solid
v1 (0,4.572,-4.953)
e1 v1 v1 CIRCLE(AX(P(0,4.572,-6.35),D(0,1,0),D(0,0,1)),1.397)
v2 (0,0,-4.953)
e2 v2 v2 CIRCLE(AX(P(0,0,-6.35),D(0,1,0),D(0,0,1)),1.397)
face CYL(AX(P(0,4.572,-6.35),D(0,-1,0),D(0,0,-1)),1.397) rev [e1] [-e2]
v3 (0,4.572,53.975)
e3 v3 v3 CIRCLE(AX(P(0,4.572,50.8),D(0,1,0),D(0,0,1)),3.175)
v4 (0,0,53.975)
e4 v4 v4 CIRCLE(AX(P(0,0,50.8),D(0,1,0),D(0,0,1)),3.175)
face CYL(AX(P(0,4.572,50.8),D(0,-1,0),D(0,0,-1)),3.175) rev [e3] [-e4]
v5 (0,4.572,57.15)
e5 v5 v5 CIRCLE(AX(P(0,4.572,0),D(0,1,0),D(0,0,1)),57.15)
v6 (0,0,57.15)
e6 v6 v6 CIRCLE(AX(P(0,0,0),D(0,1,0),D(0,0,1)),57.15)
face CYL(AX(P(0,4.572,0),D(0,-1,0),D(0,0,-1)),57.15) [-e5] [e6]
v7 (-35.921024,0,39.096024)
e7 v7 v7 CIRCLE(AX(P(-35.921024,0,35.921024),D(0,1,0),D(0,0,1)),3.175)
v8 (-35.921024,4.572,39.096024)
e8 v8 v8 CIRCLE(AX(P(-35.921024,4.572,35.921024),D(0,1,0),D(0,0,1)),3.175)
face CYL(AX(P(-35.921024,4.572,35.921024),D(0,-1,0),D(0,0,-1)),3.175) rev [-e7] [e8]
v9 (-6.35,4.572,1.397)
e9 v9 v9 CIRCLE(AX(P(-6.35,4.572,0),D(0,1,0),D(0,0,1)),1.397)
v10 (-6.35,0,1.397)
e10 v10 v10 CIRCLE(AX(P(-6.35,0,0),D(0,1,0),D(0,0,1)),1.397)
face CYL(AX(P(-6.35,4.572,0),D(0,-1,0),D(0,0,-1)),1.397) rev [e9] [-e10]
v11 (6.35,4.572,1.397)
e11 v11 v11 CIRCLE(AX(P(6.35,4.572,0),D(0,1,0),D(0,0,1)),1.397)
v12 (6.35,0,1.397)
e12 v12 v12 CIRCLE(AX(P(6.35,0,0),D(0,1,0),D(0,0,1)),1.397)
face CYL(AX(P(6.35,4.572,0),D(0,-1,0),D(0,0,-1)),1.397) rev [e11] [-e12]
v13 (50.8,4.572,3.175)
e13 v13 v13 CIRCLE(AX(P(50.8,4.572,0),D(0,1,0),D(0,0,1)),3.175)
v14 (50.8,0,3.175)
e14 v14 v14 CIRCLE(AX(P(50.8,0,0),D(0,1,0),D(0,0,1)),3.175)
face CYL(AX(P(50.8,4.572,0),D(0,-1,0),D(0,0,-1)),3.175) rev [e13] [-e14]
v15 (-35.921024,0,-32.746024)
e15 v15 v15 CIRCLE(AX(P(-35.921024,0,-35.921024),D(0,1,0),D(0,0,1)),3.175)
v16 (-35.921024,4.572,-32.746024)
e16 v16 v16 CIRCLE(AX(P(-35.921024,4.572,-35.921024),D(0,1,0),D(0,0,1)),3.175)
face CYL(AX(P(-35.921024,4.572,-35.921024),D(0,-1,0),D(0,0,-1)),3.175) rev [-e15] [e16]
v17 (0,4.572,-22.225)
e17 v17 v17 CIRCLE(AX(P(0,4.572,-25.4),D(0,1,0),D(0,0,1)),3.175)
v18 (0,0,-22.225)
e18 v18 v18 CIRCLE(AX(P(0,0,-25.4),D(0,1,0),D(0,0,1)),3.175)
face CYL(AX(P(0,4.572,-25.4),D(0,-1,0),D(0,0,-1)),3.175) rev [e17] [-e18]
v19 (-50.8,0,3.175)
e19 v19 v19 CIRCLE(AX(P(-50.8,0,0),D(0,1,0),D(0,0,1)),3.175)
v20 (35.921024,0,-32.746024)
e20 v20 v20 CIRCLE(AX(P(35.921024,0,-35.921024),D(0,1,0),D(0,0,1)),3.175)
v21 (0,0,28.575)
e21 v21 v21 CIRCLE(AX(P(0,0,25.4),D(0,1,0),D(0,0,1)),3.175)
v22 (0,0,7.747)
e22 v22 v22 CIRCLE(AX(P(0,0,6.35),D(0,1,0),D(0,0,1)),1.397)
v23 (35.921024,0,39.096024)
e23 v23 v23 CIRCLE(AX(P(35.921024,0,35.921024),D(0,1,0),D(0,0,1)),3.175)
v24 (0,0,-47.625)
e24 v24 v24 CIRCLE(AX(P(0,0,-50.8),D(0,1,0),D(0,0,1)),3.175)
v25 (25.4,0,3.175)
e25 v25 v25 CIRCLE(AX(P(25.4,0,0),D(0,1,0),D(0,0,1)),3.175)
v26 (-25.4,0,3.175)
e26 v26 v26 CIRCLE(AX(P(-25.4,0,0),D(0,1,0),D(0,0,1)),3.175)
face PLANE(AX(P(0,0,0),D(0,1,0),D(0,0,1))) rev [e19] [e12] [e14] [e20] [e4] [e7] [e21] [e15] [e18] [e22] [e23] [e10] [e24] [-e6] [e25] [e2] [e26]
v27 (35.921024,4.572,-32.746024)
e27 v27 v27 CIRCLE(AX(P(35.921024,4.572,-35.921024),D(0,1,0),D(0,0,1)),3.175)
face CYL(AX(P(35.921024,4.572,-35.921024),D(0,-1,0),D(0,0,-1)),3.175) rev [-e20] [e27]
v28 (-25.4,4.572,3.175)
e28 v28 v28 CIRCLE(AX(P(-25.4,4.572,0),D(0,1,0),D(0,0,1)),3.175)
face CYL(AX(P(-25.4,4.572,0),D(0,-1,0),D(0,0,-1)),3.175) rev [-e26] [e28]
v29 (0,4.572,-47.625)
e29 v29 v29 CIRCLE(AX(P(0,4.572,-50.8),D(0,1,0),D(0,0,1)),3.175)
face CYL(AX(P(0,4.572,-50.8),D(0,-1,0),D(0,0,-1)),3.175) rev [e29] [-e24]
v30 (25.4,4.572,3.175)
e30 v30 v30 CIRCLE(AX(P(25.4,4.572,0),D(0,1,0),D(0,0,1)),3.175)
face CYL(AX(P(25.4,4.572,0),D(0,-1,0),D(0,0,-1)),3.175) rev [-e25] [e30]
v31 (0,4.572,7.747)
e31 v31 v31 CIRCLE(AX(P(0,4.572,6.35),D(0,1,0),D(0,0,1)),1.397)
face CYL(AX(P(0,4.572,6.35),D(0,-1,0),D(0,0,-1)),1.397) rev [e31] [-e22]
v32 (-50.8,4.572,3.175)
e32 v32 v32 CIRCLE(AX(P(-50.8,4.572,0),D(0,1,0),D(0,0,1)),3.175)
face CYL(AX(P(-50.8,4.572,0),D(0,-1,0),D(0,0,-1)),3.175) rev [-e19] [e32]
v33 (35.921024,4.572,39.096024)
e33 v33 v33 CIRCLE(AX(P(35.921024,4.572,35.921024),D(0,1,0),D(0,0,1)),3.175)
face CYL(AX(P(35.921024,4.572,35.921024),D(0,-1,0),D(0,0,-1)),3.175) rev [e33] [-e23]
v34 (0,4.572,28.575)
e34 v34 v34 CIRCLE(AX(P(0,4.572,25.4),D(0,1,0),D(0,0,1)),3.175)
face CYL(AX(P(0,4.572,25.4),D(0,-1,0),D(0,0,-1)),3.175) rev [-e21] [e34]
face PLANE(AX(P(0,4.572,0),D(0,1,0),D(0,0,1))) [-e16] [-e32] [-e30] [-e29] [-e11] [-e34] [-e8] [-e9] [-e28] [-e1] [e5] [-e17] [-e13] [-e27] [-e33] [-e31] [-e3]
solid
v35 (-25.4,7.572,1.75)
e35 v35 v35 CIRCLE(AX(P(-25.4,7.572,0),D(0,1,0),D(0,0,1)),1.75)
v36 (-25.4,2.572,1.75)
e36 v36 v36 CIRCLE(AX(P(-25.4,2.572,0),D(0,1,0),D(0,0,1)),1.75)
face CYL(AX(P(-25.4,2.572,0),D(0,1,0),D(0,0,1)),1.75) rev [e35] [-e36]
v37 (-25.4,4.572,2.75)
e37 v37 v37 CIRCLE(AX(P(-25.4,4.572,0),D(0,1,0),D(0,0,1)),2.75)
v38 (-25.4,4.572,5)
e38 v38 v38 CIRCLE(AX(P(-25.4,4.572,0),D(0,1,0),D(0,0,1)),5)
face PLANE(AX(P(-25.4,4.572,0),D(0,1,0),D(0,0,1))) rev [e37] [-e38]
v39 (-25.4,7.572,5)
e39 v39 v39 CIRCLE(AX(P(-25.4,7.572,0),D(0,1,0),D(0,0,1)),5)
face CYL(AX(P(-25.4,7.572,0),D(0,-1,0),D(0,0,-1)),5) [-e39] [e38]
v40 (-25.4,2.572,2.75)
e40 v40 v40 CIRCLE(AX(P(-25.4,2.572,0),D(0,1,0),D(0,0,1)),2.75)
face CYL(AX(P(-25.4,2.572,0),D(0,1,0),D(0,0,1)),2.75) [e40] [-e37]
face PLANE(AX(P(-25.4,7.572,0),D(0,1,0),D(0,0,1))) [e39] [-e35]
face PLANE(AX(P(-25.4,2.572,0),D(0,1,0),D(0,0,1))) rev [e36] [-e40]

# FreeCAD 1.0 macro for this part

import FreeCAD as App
import Part
import Sketcher

V = App.Vector

doc = App.newDocument("Part")
params = doc.addObject("Spreadsheet::Sheet", "Params")
for row, (alias, value) in enumerate([
    ("sketch1_diameter", "114.3 mm"),
    ("sketch1_diameter2", "6.35 mm"),
    ("pad1_length", "4.572 mm"),
    ("sketch2_diameter", "5.5 mm"),
    ("sketch2_diameter2", "3.5 mm"),
    ("pad2_length", "2 mm"),
    ("sketch3_diameter", "10 mm"),
    ("sketch3_diameter2", "3.5 mm"),
    ("pad3_length", "3 mm"),
], start=1):
    params.set(f"A{row}", alias)
    params.set(f"B{row}", "=" + value)
    params.setAlias(f"B{row}", alias)

body = doc.addObject("PartDesign::Body", "Body")

sketch1 = doc.addObject("Sketcher::SketchObject", "Sketch")
body.addObject(sketch1)
sketch1.AttachmentSupport = (doc.XZ_Plane, [""])
sketch1.MapMode = "FlatFace"
sketch1.addGeometry(Part.Circle(V(0, 0, 0), V(0, 0, 1), 57.1), False)
sketch1.addGeometry(Part.Circle(V(-35.9, 35.9, 0), V(0, 0, 1), 3.2), False)
sketch1.addGeometry(Part.Circle(V(0, 50.8, 0), V(0, 0, 1), 3.2), False)
sketch1.addGeometry(Part.Circle(V(35.9, 35.9, 0), V(0, 0, 1), 3.2), False)
sketch1.addGeometry(Part.Circle(V(0, 25.4, 0), V(0, 0, 1), 3.2), False)
sketch1.addGeometry(Part.Circle(V(0, 6.3, 0), V(0, 0, 1), 1.4), False)
sketch1.addGeometry(Part.Circle(V(-50.8, 0, 0), V(0, 0, 1), 3.2), False)
sketch1.addGeometry(Part.Circle(V(-25.4, 0, 0), V(0, 0, 1), 3.2), False)
sketch1.addGeometry(Part.Circle(V(-6.3, 0, 0), V(0, 0, 1), 1.4), False)
sketch1.addGeometry(Part.Circle(V(-35.9, -35.9, 0), V(0, 0, 1), 3.2), False)
sketch1.addGeometry(Part.Circle(V(6.3, 0, 0), V(0, 0, 1), 1.4), False)
sketch1.addGeometry(Part.Circle(V(0, -6.3, 0), V(0, 0, 1), 1.4), False)
sketch1.addGeometry(Part.Circle(V(25.4, 0, 0), V(0, 0, 1), 3.2), False)
sketch1.addGeometry(Part.Circle(V(0, -25.4, 0), V(0, 0, 1), 3.2), False)
sketch1.addGeometry(Part.Circle(V(50.8, 0, 0), V(0, 0, 1), 3.2), False)
sketch1.addGeometry(Part.Circle(V(0, -50.8, 0), V(0, 0, 1), 3.2), False)
sketch1.addGeometry(Part.Circle(V(35.9, -35.9, 0), V(0, 0, 1), 3.2), False)
sketch1.addConstraint(Sketcher.Constraint("Coincident", 0, 3, -1, 1))
sketch1.addConstraint(Sketcher.Constraint("Equal", 1, 2))
sketch1.addConstraint(Sketcher.Constraint("Equal", 2, 3))
sketch1.addConstraint(Sketcher.Constraint("Equal", 3, 4))
sketch1.addConstraint(Sketcher.Constraint("Equal", 4, 6))
sketch1.addConstraint(Sketcher.Constraint("Equal", 6, 7))
sketch1.addConstraint(Sketcher.Constraint("Equal", 5, 8))
sketch1.addConstraint(Sketcher.Constraint("Equal", 7, 9))
sketch1.addConstraint(Sketcher.Constraint("Equal", 8, 10))
sketch1.addConstraint(Sketcher.Constraint("Equal", 10, 11))
sketch1.addConstraint(Sketcher.Constraint("Equal", 9, 12))
sketch1.addConstraint(Sketcher.Constraint("Equal", 12, 13))
sketch1.addConstraint(Sketcher.Constraint("Equal", 13, 14))
sketch1.addConstraint(Sketcher.Constraint("Equal", 14, 15))
sketch1.addConstraint(Sketcher.Constraint("Equal", 15, 16))
sketch1.addConstraint(Sketcher.Constraint("Symmetric", 3, 3, 9, 3, -1, 1))
sketch1.addConstraint(Sketcher.Constraint("Symmetric", 8, 3, 10, 3, -1, 1))
sketch1.addConstraint(Sketcher.Constraint("Symmetric", 5, 3, 11, 3, -1, 1))
sketch1.addConstraint(Sketcher.Constraint("Symmetric", 7, 3, 12, 3, -1, 1))
sketch1.addConstraint(Sketcher.Constraint("Symmetric", 4, 3, 13, 3, -1, 1))
sketch1.addConstraint(Sketcher.Constraint("Symmetric", 6, 3, 14, 3, -1, 1))
sketch1.addConstraint(Sketcher.Constraint("Symmetric", 2, 3, 15, 3, -1, 1))
sketch1.addConstraint(Sketcher.Constraint("Symmetric", 1, 3, 16, 3, -1, 1))
sketch1.addConstraint(Sketcher.Constraint("Symmetric", 1, 3, 3, 3, -2))
sketch1.addConstraint(Sketcher.Constraint("PointOnObject", 2, 3, -2))
sketch1.addConstraint(Sketcher.Constraint("PointOnObject", 4, 3, -2))
sketch1.addConstraint(Sketcher.Constraint("PointOnObject", 5, 3, -2))
sketch1.addConstraint(Sketcher.Constraint("PointOnObject", 6, 3, -1))
sketch1.addConstraint(Sketcher.Constraint("PointOnObject", 7, 3, -1))
sketch1.addConstraint(Sketcher.Constraint("PointOnObject", 8, 3, -1))
sketch1.addConstraint(Sketcher.Constraint("Diameter", 0, 114.3))
sketch1.addConstraint(Sketcher.Constraint("Diameter", 1, 6.35))
sketch1.addConstraint(Sketcher.Constraint("Diameter", 5, 2.794))
sketch1.addConstraint(Sketcher.Constraint("DistanceY", -1, 1, 2, 3, 50.8))
sketch1.addConstraint(Sketcher.Constraint("DistanceY", -1, 1, 4, 3, 25.4))
sketch1.addConstraint(Sketcher.Constraint("DistanceX", 6, 3, -1, 1, 50.8))
sketch1.addConstraint(Sketcher.Constraint("DistanceX", 7, 3, -1, 1, 25.4))
sketch1.addConstraint(Sketcher.Constraint("DistanceX", 8, 3, 10, 3, 12.7))
sketch1.addConstraint(Sketcher.Constraint("DistanceY", 11, 3, 5, 3, 12.7))
sketch1.addConstraint(Sketcher.Constraint("DistanceX", 1, 3, 3, 3, 71.842049))
sketch1.addConstraint(Sketcher.Constraint("DistanceY", -1, 1, 1, 3, 35.921024))
sketch1.setExpression("Constraints[30]", "Params.sketch1_diameter")
sketch1.setExpression("Constraints[31]", "Params.sketch1_diameter2")
pad1 = doc.addObject("PartDesign::Pad", "Pad")
body.addObject(pad1)
pad1.Profile = sketch1
pad1.setExpression("Length", "Params.pad1_length")
pad1.Reversed = True
body2 = doc.addObject("PartDesign::Body", "Body001")

sketch2 = doc.addObject("Sketcher::SketchObject", "Sketch001")
body2.addObject(sketch2)
sketch2.AttachmentSupport = (doc.getObject("XZ_Plane001"), [""])
sketch2.MapMode = "FlatFace"
sketch2.AttachmentOffset = App.Placement(V(0, 0, -4.572), App.Rotation())
sketch2.addGeometry(Part.Circle(V(-25.4, 0, 0), V(0, 0, 1), 2.8), False)
sketch2.addGeometry(Part.Circle(V(-25.4, 0, 0), V(0, 0, 1), 1.8), False)
sketch2.addConstraint(Sketcher.Constraint("Coincident", 1, 3, 0, 3))
sketch2.addConstraint(Sketcher.Constraint("PointOnObject", 0, 3, -1))
sketch2.addConstraint(Sketcher.Constraint("Diameter", 0, 5.5))
sketch2.addConstraint(Sketcher.Constraint("Diameter", 1, 3.5))
sketch2.addConstraint(Sketcher.Constraint("DistanceX", 0, 3, -1, 1, 25.4))
sketch2.setExpression("Constraints[2]", "Params.sketch2_diameter")
sketch2.setExpression("Constraints[3]", "Params.sketch2_diameter2")
pad2 = doc.addObject("PartDesign::Pad", "Pad001")
body2.addObject(pad2)
pad2.Profile = sketch2
pad2.setExpression("Length", "Params.pad2_length")

sketch3 = doc.addObject("Sketcher::SketchObject", "Sketch002")
body2.addObject(sketch3)
sketch3.AttachmentSupport = (doc.getObject("XZ_Plane001"), [""])
sketch3.MapMode = "FlatFace"
sketch3.AttachmentOffset = App.Placement(V(0, 0, -4.572), App.Rotation())
sketch3.addGeometry(Part.Circle(V(-25.4, 0, 0), V(0, 0, 1), 5), False)
sketch3.addGeometry(Part.Circle(V(-25.4, 0, 0), V(0, 0, 1), 1.8), False)
sketch3.addConstraint(Sketcher.Constraint("Coincident", 1, 3, 0, 3))
sketch3.addConstraint(Sketcher.Constraint("PointOnObject", 0, 3, -1))
sketch3.addConstraint(Sketcher.Constraint("Diameter", 0, 10.0))
sketch3.addConstraint(Sketcher.Constraint("Diameter", 1, 3.5))
sketch3.addConstraint(Sketcher.Constraint("DistanceX", 0, 3, -1, 1, 25.4))
sketch3.setExpression("Constraints[2]", "Params.sketch3_diameter")
sketch3.setExpression("Constraints[3]", "Params.sketch3_diameter2")
pad3 = doc.addObject("PartDesign::Pad", "Pad002")
body2.addObject(pad3)
pad3.Profile = sketch3
pad3.setExpression("Length", "Params.pad3_length")
pad3.Reversed = True

doc.recompute()
